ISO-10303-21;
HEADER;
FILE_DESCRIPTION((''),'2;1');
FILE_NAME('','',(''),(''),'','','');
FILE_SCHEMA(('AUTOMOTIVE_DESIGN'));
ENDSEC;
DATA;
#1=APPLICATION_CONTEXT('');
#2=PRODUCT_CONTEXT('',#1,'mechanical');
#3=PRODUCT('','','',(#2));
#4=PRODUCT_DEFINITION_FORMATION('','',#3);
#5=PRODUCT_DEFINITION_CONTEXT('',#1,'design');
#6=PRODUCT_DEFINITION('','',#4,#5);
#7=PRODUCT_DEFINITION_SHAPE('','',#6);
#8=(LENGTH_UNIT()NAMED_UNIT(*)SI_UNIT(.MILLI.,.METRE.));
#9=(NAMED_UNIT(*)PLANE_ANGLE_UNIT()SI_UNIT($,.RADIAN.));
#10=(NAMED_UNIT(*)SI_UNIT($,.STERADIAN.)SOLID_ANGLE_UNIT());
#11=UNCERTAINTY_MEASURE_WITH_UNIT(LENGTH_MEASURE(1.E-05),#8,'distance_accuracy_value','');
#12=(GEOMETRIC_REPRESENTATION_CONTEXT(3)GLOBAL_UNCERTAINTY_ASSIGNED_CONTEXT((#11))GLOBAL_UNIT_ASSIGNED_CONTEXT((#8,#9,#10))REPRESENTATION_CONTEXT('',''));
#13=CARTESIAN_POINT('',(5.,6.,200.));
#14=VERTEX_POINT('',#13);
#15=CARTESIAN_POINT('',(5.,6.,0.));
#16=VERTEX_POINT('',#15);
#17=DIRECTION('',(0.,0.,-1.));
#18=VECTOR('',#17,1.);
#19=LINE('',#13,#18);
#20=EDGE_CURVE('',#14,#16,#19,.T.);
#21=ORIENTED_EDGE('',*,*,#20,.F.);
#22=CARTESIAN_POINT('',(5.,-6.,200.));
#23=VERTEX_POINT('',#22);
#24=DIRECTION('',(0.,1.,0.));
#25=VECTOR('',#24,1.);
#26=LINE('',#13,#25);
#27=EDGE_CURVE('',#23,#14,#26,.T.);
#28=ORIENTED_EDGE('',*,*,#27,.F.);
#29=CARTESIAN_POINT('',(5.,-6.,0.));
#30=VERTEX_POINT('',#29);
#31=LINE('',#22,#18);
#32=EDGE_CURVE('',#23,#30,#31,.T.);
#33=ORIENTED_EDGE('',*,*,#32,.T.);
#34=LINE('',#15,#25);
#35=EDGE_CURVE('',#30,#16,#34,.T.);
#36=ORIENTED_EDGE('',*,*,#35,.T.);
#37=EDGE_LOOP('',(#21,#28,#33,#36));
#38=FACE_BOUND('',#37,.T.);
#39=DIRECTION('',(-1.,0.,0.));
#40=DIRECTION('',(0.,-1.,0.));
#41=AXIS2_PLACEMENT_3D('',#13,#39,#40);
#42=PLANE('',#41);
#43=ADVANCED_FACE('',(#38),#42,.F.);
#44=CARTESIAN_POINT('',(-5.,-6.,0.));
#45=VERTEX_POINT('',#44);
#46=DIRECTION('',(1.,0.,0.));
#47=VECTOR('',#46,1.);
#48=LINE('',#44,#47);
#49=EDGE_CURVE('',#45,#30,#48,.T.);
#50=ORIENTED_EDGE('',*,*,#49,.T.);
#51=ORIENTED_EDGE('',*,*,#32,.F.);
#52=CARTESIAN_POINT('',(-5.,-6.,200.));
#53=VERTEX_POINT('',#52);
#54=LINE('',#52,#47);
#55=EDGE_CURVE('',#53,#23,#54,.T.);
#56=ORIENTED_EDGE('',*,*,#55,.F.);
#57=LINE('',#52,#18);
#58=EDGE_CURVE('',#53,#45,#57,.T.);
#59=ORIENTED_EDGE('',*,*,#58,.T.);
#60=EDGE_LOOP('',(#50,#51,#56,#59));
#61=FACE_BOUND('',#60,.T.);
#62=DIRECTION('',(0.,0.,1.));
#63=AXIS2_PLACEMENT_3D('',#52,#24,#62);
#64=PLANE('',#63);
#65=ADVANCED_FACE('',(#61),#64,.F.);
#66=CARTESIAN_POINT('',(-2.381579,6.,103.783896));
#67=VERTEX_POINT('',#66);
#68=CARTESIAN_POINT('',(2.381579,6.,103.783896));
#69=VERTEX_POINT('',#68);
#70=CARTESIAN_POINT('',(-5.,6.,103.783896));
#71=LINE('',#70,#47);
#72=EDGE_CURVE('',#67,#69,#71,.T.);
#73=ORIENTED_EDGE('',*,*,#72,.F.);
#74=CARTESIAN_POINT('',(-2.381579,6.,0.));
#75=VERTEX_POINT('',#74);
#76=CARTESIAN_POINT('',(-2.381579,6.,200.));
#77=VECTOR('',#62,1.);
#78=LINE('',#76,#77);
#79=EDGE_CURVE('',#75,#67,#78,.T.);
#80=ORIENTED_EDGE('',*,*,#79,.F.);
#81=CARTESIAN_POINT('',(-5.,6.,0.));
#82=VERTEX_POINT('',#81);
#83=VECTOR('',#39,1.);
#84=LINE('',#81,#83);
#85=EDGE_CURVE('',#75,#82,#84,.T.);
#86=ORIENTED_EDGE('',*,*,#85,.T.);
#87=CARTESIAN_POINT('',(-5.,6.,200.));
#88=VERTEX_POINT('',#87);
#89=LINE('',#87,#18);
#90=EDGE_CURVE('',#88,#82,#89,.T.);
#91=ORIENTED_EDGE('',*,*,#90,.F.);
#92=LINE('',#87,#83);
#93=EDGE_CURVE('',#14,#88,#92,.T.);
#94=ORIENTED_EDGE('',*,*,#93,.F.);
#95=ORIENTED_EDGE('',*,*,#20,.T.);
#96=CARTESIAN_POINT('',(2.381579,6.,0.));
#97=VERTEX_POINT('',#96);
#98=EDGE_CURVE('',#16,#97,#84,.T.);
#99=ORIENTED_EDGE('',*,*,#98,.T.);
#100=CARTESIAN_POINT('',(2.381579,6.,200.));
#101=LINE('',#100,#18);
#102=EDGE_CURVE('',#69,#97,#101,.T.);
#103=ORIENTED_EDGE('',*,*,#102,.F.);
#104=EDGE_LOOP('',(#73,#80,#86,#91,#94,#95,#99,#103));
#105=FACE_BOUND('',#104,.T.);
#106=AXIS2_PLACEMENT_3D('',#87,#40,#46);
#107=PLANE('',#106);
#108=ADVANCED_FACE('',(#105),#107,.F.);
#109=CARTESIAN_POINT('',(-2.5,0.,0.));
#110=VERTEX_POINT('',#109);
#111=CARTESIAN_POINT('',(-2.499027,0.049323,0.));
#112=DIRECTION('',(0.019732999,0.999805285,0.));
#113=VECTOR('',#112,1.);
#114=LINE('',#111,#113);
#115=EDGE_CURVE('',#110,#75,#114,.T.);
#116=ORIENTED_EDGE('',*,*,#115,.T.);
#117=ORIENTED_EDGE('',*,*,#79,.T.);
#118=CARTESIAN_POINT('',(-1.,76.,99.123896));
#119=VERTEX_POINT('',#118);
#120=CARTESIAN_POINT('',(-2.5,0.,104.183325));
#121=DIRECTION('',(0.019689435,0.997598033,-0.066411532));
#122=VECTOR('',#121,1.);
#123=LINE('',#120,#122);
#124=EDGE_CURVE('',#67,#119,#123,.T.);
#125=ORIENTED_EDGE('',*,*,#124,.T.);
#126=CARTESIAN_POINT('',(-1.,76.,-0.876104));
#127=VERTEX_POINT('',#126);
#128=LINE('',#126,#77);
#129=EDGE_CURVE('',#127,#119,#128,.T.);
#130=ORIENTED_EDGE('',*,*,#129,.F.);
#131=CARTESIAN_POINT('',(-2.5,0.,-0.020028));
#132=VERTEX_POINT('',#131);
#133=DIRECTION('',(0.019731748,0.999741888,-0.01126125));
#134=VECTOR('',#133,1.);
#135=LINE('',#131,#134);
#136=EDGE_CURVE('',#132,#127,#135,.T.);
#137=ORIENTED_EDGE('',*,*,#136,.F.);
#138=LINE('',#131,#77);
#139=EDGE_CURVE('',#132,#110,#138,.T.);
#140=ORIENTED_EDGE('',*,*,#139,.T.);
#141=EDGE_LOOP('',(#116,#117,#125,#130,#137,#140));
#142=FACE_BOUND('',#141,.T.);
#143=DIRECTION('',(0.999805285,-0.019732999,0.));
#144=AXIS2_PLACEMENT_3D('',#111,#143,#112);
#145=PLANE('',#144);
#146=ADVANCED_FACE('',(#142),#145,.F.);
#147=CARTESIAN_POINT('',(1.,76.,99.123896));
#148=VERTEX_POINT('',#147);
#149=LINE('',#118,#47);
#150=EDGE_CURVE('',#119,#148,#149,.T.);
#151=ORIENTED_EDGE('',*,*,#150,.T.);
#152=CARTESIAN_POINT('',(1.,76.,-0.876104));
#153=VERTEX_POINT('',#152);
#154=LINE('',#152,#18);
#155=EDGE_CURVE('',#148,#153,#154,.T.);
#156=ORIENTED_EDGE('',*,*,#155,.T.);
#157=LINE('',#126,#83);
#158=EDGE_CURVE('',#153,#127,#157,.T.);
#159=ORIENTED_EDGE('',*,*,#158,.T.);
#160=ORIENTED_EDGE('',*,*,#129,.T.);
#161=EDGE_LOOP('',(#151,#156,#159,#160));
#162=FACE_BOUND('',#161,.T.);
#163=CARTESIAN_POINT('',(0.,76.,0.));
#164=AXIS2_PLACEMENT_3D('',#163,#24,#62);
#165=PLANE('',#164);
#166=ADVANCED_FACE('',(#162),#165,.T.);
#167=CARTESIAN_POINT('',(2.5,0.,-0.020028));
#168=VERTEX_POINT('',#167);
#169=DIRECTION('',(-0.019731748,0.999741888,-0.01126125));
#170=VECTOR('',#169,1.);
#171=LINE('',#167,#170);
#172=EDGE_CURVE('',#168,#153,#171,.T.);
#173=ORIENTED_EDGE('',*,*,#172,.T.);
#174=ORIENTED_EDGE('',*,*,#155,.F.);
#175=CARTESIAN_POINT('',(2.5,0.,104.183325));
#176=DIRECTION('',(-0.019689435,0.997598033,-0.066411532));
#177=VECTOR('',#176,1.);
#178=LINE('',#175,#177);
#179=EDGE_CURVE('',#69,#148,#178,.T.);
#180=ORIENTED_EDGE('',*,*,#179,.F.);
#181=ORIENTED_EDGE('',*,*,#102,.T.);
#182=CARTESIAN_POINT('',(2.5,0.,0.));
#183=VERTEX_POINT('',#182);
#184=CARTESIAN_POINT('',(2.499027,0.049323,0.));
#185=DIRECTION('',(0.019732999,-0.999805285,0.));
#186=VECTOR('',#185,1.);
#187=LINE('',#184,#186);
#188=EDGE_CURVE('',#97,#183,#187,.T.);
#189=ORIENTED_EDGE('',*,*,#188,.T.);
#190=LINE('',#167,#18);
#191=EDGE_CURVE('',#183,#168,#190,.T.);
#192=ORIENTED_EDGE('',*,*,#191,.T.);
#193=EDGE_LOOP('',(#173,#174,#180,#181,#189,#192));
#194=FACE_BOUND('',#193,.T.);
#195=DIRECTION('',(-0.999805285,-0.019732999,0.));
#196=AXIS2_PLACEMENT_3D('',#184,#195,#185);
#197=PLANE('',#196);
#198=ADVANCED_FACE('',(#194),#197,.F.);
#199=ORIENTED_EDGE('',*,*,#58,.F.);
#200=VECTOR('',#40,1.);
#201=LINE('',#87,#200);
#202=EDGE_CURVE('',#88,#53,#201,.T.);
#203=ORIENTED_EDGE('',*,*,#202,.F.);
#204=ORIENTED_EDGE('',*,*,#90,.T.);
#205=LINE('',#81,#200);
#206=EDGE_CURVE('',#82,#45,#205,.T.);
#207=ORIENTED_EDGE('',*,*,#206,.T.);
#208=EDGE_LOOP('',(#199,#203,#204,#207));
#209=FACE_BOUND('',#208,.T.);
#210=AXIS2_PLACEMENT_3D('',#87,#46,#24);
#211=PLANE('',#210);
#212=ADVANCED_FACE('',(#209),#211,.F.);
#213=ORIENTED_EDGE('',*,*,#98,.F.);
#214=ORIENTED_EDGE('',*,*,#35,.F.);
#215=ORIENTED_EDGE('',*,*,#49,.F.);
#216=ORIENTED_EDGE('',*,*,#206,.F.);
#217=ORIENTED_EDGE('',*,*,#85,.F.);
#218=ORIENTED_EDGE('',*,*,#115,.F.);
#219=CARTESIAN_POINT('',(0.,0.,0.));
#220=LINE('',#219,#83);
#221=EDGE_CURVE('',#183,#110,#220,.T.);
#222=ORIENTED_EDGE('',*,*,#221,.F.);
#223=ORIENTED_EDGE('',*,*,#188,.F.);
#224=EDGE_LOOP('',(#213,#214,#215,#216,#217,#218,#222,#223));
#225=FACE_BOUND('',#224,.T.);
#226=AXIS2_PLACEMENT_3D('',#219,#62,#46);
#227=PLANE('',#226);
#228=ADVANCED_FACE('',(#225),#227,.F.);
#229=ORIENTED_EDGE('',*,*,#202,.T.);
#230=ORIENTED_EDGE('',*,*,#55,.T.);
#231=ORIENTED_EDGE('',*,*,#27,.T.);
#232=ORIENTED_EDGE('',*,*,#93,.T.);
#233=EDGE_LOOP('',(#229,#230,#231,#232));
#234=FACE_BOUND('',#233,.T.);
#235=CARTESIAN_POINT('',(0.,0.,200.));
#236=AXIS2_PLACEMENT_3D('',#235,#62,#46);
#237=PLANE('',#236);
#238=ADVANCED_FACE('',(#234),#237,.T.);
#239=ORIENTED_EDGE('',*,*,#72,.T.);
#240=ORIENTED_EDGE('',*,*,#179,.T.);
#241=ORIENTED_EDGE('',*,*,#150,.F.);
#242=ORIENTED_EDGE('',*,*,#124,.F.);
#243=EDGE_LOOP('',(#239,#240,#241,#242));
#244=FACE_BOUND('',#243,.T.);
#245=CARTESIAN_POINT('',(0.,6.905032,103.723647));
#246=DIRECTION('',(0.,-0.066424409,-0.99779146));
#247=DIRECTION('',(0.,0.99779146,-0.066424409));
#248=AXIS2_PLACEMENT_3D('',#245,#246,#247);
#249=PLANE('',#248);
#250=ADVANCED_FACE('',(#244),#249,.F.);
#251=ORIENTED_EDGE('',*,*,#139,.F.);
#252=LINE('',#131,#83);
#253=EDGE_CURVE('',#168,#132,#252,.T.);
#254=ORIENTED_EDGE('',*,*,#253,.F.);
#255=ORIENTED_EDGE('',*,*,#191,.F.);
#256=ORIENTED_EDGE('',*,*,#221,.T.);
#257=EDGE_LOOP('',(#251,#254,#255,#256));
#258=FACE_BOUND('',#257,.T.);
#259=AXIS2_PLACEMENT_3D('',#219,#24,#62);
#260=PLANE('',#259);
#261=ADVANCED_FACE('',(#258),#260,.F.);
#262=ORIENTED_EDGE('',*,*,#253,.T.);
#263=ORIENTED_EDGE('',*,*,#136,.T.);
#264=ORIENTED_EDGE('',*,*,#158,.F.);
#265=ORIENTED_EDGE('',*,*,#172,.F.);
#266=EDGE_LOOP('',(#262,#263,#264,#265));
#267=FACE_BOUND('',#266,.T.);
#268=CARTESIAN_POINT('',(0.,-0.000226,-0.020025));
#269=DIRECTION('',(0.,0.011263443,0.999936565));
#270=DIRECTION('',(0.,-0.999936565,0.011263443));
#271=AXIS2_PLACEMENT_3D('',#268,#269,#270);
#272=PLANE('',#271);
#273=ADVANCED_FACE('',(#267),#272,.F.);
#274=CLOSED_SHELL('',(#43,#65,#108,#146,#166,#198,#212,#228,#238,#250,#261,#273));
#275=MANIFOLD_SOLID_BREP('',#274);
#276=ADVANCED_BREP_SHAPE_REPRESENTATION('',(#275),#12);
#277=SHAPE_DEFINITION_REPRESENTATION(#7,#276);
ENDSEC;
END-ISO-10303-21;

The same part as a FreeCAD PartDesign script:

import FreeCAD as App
import Part
import Sketcher


def add_polygon(sketch, points):
    """Adds a closed chain of lines whose ends are joined by coincident constraints."""
    first, n = sketch.GeometryCount, len(points)
    for a, b in zip(points, points[1:] + points[:1]):
        sketch.addGeometry(Part.LineSegment(App.Vector(*a, 0), App.Vector(*b, 0)), False)
    for i in range(n):
        sketch.addConstraint(Sketcher.Constraint("Coincident", first + i, 2, first + (i + 1) % n, 1))

doc = App.newDocument("Part")
params = doc.addObject("Spreadsheet::Sheet", "Params")
for row, (alias, value) in enumerate([
    ("sketch1_width", "10 mm"),
    ("sketch1_height", "12 mm"),
    ("pad1_length", "200 mm"),
    ("sketch2_width", "5 mm"),
    ("sketch3_width", "2 mm"),
    ("sketch3_height", "100 mm"),
], start=1):
    params.set(f"A{row}", alias)
    params.set(f"B{row}", "=" + value)
    params.setAlias(f"B{row}", alias)

body = doc.addObject("PartDesign::Body", "Body")

sketch1 = body.newObject("Sketcher::SketchObject", "Sketch")
sketch1.AttachmentSupport = (doc.getObject("XY_Plane"), [""])
sketch1.MapMode = "FlatFace"
add_polygon(sketch1, [(-5, 6), (-5, -6), (5, -6), (5, 6)])
sketch1.addConstraint([
    Sketcher.Constraint("Vertical", 0),
    Sketcher.Constraint("Horizontal", 1),
    Sketcher.Constraint("Vertical", 2),
    Sketcher.Constraint("Horizontal", 3),
    Sketcher.Constraint("Symmetric", 0, 2, 2, 2, -1, 1),
    Sketcher.Constraint("DistanceX", 1, 1, 1, 2, 10.0),
    Sketcher.Constraint("DistanceY", 0, 2, 0, 1, 12.0),
])
sketch1.setExpression("Constraints[9]", "Params.sketch1_width")
sketch1.setExpression("Constraints[10]", "Params.sketch1_height")
pad1 = body.newObject("PartDesign::Pad", "Pad")
pad1.Profile = sketch1
pad1.setExpression("Length", "Params.pad1_length")

sketch2 = body.newObject("Sketcher::SketchObject", "Sketch001")
sketch2.AttachmentSupport = (doc.getObject("XZ_Plane"), [""])
sketch2.MapMode = "FlatFace"
add_polygon(sketch2, [(2, 0), (-2, 0), (-2, 104), (2, 104)])
sketch2.addConstraint([
    Sketcher.Constraint("Horizontal", 0),
    Sketcher.Constraint("Vertical", 1),
    Sketcher.Constraint("Horizontal", 2),
    Sketcher.Constraint("Vertical", 3),
    Sketcher.Constraint("DistanceX", 0, 2, 0, 1, 5.0),
    Sketcher.Constraint("DistanceX", 0, 2, -1, 1, 2.5),
    Sketcher.Constraint("DistanceY", 1, 1, 1, 2, 104.203353),
    Sketcher.Constraint("DistanceY", 0, 2, -1, 1, 0.020028),
])
sketch2.setExpression("Constraints[8]", "Params.sketch2_width")

sketch3 = body.newObject("Sketcher::SketchObject", "Sketch002")
sketch3.AttachmentSupport = (doc.getObject("XZ_Plane"), [""])
sketch3.MapMode = "FlatFace"
sketch3.AttachmentOffset = App.Placement(App.Vector(0, 0, -76), App.Rotation())
add_polygon(sketch3, [(1, -0.9), (-1, -0.9), (-1, 99.1), (1, 99.1)])
sketch3.addConstraint([
    Sketcher.Constraint("Horizontal", 0),
    Sketcher.Constraint("Vertical", 1),
    Sketcher.Constraint("Horizontal", 2),
    Sketcher.Constraint("Vertical", 3),
    Sketcher.Constraint("DistanceX", 0, 2, 0, 1, 2.0),
    Sketcher.Constraint("DistanceY", 1, 1, 1, 2, 100.0),
    Sketcher.Constraint("DistanceX", 0, 2, -1, 1, 1.0),
    Sketcher.Constraint("DistanceY", 0, 2, -1, 1, 0.876104),
])
sketch3.setExpression("Constraints[8]", "Params.sketch3_width")
sketch3.setExpression("Constraints[9]", "Params.sketch3_height")

additiveloft = body.newObject("PartDesign::AdditiveLoft", "AdditiveLoft")
additiveloft.Profile = sketch2
additiveloft.Sections = [sketch3]

doc.recompute()
